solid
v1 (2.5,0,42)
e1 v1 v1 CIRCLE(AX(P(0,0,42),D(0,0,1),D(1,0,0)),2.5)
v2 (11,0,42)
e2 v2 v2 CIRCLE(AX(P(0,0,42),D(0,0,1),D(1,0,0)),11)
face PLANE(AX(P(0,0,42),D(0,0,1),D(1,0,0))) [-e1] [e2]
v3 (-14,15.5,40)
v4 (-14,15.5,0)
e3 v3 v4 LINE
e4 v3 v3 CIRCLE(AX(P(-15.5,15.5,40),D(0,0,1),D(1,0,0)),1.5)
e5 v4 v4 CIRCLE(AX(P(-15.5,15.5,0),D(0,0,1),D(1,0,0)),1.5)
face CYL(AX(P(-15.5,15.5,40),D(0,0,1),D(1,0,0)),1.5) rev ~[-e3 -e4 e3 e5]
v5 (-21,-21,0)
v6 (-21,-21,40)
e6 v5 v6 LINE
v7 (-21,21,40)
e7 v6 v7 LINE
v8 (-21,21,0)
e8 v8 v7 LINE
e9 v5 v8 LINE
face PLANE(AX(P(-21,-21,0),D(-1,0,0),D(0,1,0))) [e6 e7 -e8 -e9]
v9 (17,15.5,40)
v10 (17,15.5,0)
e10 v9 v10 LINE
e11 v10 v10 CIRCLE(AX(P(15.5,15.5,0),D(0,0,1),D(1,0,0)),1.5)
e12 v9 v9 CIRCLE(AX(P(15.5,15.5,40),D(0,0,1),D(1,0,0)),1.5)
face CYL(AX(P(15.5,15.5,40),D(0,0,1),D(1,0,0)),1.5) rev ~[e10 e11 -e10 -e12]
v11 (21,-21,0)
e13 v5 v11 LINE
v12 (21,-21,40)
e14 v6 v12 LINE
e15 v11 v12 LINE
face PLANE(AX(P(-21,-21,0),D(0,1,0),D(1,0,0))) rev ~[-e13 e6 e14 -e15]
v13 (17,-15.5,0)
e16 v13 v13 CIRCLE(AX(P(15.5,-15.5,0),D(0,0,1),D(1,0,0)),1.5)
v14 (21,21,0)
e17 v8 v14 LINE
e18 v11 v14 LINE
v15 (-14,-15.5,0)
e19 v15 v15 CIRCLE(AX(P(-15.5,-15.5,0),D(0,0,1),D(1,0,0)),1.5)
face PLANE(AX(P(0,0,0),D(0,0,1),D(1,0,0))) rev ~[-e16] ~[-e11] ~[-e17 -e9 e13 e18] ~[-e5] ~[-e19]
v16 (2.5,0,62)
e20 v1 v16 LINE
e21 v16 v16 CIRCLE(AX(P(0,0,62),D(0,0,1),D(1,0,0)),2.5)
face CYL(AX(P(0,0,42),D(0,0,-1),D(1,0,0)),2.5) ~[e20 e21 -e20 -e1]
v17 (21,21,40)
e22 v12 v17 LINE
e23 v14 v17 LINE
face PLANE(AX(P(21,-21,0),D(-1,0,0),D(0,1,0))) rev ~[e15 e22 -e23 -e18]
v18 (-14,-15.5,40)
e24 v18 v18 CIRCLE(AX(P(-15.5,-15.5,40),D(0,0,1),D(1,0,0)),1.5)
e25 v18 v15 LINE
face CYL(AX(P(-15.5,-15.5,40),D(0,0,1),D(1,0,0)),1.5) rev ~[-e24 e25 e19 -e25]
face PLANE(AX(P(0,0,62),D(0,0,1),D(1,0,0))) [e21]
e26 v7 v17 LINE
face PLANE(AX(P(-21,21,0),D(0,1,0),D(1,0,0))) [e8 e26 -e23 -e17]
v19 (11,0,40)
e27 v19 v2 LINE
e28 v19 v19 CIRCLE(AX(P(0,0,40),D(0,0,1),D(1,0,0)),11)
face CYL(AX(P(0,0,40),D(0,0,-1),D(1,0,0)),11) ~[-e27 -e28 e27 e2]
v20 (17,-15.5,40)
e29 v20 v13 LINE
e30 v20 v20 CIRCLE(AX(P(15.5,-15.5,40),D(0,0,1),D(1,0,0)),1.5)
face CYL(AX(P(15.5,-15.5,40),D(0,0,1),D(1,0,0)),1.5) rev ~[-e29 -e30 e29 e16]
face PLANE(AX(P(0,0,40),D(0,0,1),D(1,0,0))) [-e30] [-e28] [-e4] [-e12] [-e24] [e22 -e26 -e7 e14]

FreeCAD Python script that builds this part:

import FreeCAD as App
import Part
import Sketcher

V = App.Vector
Q = App.Units.Quantity


def add_polygon(sketch, points):
    """Adds a closed chain of lines whose ends are joined by coincident constraints."""
    first, n = sketch.GeometryCount, len(points)
    for a, b in zip(points, points[1:] + points[:1]):
        sketch.addGeometry(Part.LineSegment(App.Vector(*a, 0), App.Vector(*b, 0)), False)
    for i in range(n):
        sketch.addConstraint(Sketcher.Constraint("Coincident", first + i, 2, first + (i + 1) % n, 1))

doc = App.newDocument("Part")
body = doc.addObject("PartDesign::Body", "Body")

sketch1 = doc.addObject("Sketcher::SketchObject", "Sketch")
body.addObject(sketch1)
sketch1.AttachmentSupport = (doc.XY_Plane, [""])
sketch1.MapMode = "FlatFace"
add_polygon(sketch1, [(-21, 21), (-21, -21), (21, -21), (21, 21)])
sketch1.addConstraint([
    Sketcher.Constraint("Vertical", 0),
    Sketcher.Constraint("Horizontal", 1),
    Sketcher.Constraint("Vertical", 2),
    Sketcher.Constraint("Horizontal", 3),
    Sketcher.Constraint("Symmetric", 0, 2, 2, 2, -1, 1),
    Sketcher.Constraint("Equal", 3, 0),
    Sketcher.Constraint("DistanceX", 1, 1, 1, 2, Q("42 mm")),
])
pad1 = doc.addObject("PartDesign::Pad", "Pad")
body.addObject(pad1)
pad1.Profile = sketch1
pad1.Length = 40

sketch2 = doc.addObject("Sketcher::SketchObject", "Sketch001")
body.addObject(sketch2)
sketch2.AttachmentSupport = (doc.XY_Plane, [""])
sketch2.MapMode = "FlatFace"
sketch2.AttachmentOffset = App.Placement(V(0, 0, 40), App.Rotation())
sketch2.addGeometry(Part.Circle(V(0, 0, 0), V(0, 0, 1), 11), False)
sketch2.addConstraint([
    Sketcher.Constraint("Coincident", 0, 3, -1, 1),
    Sketcher.Constraint("Diameter", 0, Q("22 mm")),
])
pad2 = doc.addObject("PartDesign::Pad", "Pad001")
body.addObject(pad2)
pad2.Profile = sketch2
pad2.Length = 2

sketch3 = doc.addObject("Sketcher::SketchObject", "Sketch002")
body.addObject(sketch3)
sketch3.AttachmentSupport = (doc.XY_Plane, [""])
sketch3.MapMode = "FlatFace"
sketch3.AttachmentOffset = App.Placement(V(0, 0, 42), App.Rotation())
sketch3.addGeometry(Part.Circle(V(0, 0, 0), V(0, 0, 1), 2.5), False)
sketch3.addConstraint([
    Sketcher.Constraint("Coincident", 0, 3, -1, 1),
    Sketcher.Constraint("Diameter", 0, Q("5 mm")),
])
pad3 = doc.addObject("PartDesign::Pad", "Pad002")
body.addObject(pad3)
pad3.Profile = sketch3
pad3.Length = 20

sketch4 = doc.addObject("Sketcher::SketchObject", "Sketch003")
body.addObject(sketch4)
sketch4.AttachmentSupport = (doc.XY_Plane, [""])
sketch4.MapMode = "FlatFace"
sketch4.AttachmentOffset = App.Placement(V(0, 0, 40), App.Rotation())
sketch4.addGeometry([
    Part.Circle(V(-15.5, 15.5, 0), V(0, 0, 1), 1.5),
    Part.Circle(V(15.5, 15.5, 0), V(0, 0, 1), 1.5),
    Part.Circle(V(15.5, -15.5, 0), V(0, 0, 1), 1.5),
    Part.Circle(V(-15.5, -15.5, 0), V(0, 0, 1), 1.5),
], False)
sketch4.addConstraint([
    Sketcher.Constraint("Equal", 0, 1),
    Sketcher.Constraint("Equal", 1, 2),
    Sketcher.Constraint("Equal", 2, 3),
    Sketcher.Constraint("Symmetric", 0, 3, 2, 3, -1, 1),
    Sketcher.Constraint("Symmetric", 1, 3, 3, 3, -1, 1),
    Sketcher.Constraint("Symmetric", 0, 3, 1, 3, -2),
    Sketcher.Constraint("Diameter", 0, Q("3 mm")),
    Sketcher.Constraint("DistanceX", 0, 3, 1, 3, Q("31 mm")),
    Sketcher.Constraint("DistanceY", 2, 3, 1, 3, Q("31 mm")),
])
pocket1 = doc.addObject("PartDesign::Pocket", "Pocket")
body.addObject(pocket1)
pocket1.Profile = sketch4
pocket1.Type = "ThroughAll"

doc.recompute()
